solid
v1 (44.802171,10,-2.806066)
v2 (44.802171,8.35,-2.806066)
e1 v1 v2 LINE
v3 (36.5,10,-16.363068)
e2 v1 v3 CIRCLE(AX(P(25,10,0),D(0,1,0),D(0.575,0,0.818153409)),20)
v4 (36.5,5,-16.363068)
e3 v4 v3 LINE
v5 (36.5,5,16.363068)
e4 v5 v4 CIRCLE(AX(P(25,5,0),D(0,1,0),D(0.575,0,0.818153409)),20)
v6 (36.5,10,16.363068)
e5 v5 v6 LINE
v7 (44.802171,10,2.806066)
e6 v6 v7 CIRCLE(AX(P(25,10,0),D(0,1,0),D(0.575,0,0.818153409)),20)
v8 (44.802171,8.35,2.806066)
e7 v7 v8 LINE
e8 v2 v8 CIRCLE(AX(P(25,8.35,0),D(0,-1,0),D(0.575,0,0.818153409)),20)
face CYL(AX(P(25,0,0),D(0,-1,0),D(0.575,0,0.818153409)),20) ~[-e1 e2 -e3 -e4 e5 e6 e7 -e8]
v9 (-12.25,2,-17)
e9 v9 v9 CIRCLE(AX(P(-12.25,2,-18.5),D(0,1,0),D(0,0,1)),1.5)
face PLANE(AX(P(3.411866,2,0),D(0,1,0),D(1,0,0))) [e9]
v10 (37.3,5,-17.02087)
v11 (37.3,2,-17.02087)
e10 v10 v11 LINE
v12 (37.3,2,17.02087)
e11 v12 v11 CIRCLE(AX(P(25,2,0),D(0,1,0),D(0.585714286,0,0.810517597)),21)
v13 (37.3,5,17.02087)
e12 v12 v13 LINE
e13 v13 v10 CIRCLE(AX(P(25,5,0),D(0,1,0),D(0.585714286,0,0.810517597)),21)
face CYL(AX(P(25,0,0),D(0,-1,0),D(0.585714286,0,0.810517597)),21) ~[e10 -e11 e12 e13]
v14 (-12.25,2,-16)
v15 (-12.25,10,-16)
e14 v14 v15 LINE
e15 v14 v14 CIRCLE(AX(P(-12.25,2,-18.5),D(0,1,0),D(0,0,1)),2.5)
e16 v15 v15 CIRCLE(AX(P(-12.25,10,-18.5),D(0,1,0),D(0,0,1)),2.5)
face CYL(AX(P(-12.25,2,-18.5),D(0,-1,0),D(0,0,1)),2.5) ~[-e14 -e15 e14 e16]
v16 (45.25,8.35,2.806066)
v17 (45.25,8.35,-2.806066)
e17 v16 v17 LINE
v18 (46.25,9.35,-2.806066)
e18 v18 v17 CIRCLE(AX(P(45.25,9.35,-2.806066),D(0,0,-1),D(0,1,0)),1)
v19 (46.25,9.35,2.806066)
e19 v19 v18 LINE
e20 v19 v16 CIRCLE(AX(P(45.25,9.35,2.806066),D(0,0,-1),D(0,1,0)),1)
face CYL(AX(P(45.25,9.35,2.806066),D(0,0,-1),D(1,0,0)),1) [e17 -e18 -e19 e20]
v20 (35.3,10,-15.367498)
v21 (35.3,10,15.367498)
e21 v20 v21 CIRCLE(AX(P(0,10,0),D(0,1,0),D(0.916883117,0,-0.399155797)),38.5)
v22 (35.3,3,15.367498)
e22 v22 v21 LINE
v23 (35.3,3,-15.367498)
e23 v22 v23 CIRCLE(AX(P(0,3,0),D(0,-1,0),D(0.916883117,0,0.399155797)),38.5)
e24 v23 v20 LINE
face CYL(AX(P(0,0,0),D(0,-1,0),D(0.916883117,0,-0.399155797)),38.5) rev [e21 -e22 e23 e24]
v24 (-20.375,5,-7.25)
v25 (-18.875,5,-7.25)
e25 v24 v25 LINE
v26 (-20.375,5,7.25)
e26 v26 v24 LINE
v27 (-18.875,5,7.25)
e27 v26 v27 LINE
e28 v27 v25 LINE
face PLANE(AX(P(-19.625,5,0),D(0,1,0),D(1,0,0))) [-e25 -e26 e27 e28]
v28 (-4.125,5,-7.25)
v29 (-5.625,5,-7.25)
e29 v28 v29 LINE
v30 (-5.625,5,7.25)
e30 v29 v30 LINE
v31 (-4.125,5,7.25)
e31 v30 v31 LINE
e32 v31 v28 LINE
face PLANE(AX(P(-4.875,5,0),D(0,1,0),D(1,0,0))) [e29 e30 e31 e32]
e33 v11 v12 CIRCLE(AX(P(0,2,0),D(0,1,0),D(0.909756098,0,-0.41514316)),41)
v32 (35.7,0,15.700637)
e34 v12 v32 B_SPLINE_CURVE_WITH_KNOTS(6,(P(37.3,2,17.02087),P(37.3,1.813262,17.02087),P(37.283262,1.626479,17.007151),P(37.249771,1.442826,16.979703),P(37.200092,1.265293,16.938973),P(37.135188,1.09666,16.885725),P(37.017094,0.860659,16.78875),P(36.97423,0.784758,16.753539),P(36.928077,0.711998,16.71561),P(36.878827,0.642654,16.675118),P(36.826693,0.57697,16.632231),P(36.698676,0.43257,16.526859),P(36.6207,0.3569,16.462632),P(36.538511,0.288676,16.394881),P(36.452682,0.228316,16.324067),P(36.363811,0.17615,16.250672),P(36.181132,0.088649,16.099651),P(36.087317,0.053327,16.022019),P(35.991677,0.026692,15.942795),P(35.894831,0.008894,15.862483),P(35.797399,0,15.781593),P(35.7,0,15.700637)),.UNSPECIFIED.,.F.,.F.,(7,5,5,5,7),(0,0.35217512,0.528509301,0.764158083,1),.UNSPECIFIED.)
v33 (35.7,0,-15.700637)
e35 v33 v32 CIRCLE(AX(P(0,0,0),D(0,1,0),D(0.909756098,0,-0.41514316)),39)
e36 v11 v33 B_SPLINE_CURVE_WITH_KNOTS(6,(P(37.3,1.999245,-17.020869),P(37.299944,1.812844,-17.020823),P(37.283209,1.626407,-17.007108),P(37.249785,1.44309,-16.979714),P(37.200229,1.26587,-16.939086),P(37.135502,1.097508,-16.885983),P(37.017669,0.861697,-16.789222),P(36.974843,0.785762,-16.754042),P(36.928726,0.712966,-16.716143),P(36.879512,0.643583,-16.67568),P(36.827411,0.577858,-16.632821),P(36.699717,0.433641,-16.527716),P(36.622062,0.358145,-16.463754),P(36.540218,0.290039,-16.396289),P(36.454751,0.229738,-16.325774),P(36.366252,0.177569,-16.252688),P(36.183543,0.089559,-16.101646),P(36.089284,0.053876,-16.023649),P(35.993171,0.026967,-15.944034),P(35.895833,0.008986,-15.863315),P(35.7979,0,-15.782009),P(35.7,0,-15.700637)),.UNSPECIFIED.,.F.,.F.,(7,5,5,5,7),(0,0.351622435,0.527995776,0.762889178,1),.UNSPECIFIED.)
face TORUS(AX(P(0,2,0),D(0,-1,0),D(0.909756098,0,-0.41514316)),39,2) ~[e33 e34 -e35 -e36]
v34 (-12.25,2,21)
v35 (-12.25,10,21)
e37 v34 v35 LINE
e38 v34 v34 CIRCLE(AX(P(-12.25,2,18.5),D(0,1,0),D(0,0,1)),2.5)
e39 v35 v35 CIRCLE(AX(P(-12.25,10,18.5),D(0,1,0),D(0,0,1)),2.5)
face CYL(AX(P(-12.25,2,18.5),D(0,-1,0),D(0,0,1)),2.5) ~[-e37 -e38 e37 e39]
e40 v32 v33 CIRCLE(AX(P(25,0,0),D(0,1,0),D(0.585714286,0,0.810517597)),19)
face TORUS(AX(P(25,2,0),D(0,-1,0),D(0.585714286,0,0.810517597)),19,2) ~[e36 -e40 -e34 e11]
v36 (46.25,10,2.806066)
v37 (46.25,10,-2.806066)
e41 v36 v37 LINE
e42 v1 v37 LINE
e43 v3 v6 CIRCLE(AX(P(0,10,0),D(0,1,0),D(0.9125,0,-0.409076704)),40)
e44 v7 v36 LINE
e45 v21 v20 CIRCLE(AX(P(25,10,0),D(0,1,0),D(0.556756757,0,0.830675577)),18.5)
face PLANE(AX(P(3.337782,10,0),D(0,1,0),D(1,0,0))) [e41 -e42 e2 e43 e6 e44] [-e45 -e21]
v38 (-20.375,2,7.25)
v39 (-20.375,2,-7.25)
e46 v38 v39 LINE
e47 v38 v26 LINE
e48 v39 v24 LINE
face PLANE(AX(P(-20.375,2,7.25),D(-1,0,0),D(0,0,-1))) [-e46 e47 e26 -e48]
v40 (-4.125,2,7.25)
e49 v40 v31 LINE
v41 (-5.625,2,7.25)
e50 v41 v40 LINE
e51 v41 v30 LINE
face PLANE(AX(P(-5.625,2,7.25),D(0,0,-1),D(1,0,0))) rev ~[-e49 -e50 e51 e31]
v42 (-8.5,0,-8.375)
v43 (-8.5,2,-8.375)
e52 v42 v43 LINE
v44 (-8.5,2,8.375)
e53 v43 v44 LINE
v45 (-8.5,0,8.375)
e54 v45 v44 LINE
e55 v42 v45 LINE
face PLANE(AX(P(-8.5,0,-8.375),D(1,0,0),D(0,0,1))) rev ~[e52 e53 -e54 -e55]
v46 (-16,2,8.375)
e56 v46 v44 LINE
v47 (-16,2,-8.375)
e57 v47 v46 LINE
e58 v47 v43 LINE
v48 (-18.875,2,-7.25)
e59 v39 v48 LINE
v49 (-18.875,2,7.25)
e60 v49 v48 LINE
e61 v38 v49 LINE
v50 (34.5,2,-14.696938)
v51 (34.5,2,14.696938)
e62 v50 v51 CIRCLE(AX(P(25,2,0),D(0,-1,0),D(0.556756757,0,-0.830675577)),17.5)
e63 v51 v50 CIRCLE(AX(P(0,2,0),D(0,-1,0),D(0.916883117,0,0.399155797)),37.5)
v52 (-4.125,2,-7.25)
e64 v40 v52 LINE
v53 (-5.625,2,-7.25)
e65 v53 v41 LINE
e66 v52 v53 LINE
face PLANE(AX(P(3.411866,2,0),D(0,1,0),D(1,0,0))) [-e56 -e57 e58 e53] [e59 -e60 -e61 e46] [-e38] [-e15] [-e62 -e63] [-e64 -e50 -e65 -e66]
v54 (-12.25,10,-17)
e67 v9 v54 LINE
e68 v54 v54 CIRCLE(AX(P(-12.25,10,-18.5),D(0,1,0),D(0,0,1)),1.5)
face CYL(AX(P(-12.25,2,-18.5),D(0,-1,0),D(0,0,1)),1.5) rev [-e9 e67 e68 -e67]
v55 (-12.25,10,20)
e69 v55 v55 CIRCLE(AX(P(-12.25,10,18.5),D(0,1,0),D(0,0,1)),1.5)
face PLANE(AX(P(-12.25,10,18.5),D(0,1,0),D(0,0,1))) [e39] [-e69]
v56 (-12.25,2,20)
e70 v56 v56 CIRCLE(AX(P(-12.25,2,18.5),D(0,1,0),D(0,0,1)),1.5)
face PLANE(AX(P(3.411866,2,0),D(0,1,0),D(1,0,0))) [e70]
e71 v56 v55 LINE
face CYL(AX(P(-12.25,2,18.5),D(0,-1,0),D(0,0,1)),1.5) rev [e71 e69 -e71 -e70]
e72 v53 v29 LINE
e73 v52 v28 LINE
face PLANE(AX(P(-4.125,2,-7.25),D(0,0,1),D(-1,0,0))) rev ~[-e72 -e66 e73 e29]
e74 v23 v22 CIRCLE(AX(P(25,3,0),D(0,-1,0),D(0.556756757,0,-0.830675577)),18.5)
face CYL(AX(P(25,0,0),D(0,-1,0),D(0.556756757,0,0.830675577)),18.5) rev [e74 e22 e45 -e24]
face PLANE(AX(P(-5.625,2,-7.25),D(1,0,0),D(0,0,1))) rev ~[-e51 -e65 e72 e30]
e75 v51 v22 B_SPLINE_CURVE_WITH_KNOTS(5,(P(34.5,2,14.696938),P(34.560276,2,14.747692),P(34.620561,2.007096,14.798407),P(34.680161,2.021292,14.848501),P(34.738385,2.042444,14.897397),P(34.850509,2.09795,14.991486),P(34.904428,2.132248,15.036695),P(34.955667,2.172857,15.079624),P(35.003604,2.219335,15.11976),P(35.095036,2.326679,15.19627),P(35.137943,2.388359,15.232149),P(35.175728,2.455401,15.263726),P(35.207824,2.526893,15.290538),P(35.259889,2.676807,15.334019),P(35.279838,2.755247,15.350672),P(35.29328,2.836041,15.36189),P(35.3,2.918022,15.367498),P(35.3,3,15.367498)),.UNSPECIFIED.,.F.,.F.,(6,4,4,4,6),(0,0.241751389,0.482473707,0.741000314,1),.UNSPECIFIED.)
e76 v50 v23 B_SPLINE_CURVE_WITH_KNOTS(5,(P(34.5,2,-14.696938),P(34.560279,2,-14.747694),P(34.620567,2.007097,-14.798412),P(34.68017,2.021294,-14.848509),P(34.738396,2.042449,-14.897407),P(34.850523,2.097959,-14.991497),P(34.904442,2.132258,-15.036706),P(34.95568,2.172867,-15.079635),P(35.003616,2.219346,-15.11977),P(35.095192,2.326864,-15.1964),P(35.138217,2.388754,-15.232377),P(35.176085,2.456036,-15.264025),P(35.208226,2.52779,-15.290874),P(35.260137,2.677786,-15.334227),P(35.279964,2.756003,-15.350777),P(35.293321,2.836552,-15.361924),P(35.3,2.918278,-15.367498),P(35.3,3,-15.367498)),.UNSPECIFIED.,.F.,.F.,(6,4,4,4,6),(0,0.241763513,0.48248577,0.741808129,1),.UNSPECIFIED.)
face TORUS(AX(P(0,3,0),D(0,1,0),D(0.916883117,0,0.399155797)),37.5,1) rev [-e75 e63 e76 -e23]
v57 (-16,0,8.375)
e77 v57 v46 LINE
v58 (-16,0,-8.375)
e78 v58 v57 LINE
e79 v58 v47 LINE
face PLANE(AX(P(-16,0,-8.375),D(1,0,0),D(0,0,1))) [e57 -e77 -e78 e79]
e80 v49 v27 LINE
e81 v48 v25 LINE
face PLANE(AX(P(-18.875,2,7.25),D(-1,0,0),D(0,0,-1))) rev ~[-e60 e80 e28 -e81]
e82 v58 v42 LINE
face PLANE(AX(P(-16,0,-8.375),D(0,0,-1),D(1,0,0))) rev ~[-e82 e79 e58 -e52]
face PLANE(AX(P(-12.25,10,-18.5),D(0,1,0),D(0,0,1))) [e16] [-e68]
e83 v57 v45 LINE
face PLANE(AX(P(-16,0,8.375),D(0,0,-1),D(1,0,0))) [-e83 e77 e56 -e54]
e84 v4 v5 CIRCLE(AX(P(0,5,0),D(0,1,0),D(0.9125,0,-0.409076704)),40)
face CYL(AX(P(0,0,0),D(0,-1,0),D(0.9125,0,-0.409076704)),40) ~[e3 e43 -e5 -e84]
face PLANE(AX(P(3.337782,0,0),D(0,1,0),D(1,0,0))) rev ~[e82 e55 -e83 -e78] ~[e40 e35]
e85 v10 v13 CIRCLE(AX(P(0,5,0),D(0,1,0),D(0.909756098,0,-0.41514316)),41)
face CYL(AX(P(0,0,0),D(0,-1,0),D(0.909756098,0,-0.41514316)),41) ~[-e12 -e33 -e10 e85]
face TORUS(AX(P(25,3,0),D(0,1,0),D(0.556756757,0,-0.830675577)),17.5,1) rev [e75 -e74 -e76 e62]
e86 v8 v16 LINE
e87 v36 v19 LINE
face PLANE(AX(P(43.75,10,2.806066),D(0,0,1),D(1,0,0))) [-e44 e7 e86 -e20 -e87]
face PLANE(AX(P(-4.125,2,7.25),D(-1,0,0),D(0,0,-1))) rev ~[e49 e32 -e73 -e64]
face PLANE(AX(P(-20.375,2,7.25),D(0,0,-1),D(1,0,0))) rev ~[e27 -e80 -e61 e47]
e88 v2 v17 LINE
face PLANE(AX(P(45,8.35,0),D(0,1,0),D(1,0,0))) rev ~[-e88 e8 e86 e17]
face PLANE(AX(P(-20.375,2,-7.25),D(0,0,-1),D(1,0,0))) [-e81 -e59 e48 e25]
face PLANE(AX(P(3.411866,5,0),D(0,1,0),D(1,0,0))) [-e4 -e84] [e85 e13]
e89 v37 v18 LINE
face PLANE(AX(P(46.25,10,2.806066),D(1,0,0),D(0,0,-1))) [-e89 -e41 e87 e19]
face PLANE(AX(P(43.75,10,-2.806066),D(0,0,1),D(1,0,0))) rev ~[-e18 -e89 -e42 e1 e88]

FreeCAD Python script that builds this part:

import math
import FreeCAD as App
import Part
import Sketcher


def edges_at(feature, points):
    """Names of the edges that pass closest to the given points."""
    edges = feature.Shape.Edges
    near = lambda p: min(range(len(edges)), key=lambda i: edges[i].distToShape(Part.Vertex(*p))[0])
    return sorted({f"Edge{near(p) + 1}" for p in points})


def add_polygon(sketch, points):
    """Adds a closed chain of lines whose ends are joined by coincident constraints."""
    first, n = sketch.GeometryCount, len(points)
    for a, b in zip(points, points[1:] + points[:1]):
        sketch.addGeometry(Part.LineSegment(App.Vector(*a, 0), App.Vector(*b, 0)), False)
    for i in range(n):
        sketch.addConstraint(Sketcher.Constraint("Coincident", first + i, 2, first + (i + 1) % n, 1))

doc = App.newDocument("Part")
body = doc.addObject("PartDesign::Body", "Body")

# Sketch on XZ plane
sketch1 = body.newObject("Sketcher::SketchObject", "Sketch")
sketch1.AttachmentSupport = (doc.getObject("XZ_Plane"), [""])
sketch1.MapMode = "FlatFace"
sketch1.addGeometry([
    Part.ArcOfCircle(Part.Circle(App.Vector(0, 0, 0), App.Vector(0, 0, 1), 41), math.radians(25), math.radians(335)),
    Part.ArcOfCircle(Part.Circle(App.Vector(25, 0, 0), App.Vector(0, 0, 1), 21), math.radians(-54), math.radians(54)),
], False)
sketch1.addConstraint([
    Sketcher.Constraint("Coincident", 0, 1, 1, 2),
    Sketcher.Constraint("Coincident", 1, 1, 0, 2),
    Sketcher.Constraint("Coincident", 0, 3, -1, 1),
    Sketcher.Constraint("PointOnObject", 1, 3, -1),
    Sketcher.Constraint("Radius", 0, 41.0),
    Sketcher.Constraint("Radius", 1, 21.0),
    Sketcher.Constraint("DistanceX", -1, 1, 1, 3, 25.0),
])
pad1 = body.newObject("PartDesign::Pad", "Pad")
pad1.Profile = sketch1
pad1.Length = 2
pad1.Reversed = True

# Sketch on XZ plane
sketch2 = body.newObject("Sketcher::SketchObject", "Sketch001")
sketch2.AttachmentSupport = (doc.getObject("XZ_Plane"), [""])
sketch2.MapMode = "FlatFace"
sketch2.addGeometry([
    Part.ArcOfCircle(Part.Circle(App.Vector(0, 0, 0), App.Vector(0, 0, 1), 40), math.radians(24), math.radians(336)),
    Part.ArcOfCircle(Part.Circle(App.Vector(25, 0, 0), App.Vector(0, 0, 1), 20), math.radians(-55), math.radians(55)),
    Part.ArcOfCircle(Part.Circle(App.Vector(25, 0, 0), App.Vector(0, 0, 1), 18), math.radians(-56), math.radians(56)),
    Part.ArcOfCircle(Part.Circle(App.Vector(0, 0, 0), App.Vector(0, 0, 1), 38), math.radians(24), math.radians(336)),
], False)
sketch2.addConstraint([
    Sketcher.Constraint("Coincident", 0, 1, 1, 2),
    Sketcher.Constraint("Coincident", 1, 1, 0, 2),
    Sketcher.Constraint("Coincident", 2, 1, 3, 2),
    Sketcher.Constraint("Coincident", 3, 1, 2, 2),
    Sketcher.Constraint("Coincident", 0, 3, -1, 1),
    Sketcher.Constraint("Coincident", 3, 3, -1, 1),
    Sketcher.Constraint("Coincident", 2, 3, 1, 3),
    Sketcher.Constraint("PointOnObject", 1, 3, -1),
    Sketcher.Constraint("Radius", 0, 40.0),
    Sketcher.Constraint("Radius", 1, 20.0),
    Sketcher.Constraint("Radius", 2, 18.5),
    Sketcher.Constraint("Radius", 3, 38.5),
    Sketcher.Constraint("DistanceX", -1, 1, 1, 3, 25.0),
])
pad2 = body.newObject("PartDesign::Pad", "Pad001")
pad2.Profile = sketch2
pad2.Length = 10
pad2.Reversed = True

# Sketch on XZ plane
sketch3 = body.newObject("Sketcher::SketchObject", "Sketch002")
sketch3.AttachmentSupport = (doc.getObject("XZ_Plane"), [""])
sketch3.MapMode = "FlatFace"
sketch3.addGeometry([
    Part.ArcOfCircle(Part.Circle(App.Vector(0, 0, 0), App.Vector(0, 0, 1), 41), math.radians(25), math.radians(335)),
    Part.ArcOfCircle(Part.Circle(App.Vector(25, 0, 0), App.Vector(0, 0, 1), 21), math.radians(-54), math.radians(54)),
    Part.ArcOfCircle(Part.Circle(App.Vector(25, 0, 0), App.Vector(0, 0, 1), 20), math.radians(-55), math.radians(55)),
    Part.ArcOfCircle(Part.Circle(App.Vector(0, 0, 0), App.Vector(0, 0, 1), 40), math.radians(24), math.radians(336)),
], False)
sketch3.addConstraint([
    Sketcher.Constraint("Coincident", 0, 1, 1, 2),
    Sketcher.Constraint("Coincident", 1, 1, 0, 2),
    Sketcher.Constraint("Coincident", 2, 1, 3, 2),
    Sketcher.Constraint("Coincident", 3, 1, 2, 2),
    Sketcher.Constraint("Coincident", 0, 3, -1, 1),
    Sketcher.Constraint("Coincident", 3, 3, -1, 1),
    Sketcher.Constraint("Coincident", 2, 3, 1, 3),
    Sketcher.Constraint("PointOnObject", 1, 3, -1),
    Sketcher.Constraint("Radius", 0, 41.0),
    Sketcher.Constraint("Radius", 1, 21.0),
    Sketcher.Constraint("Radius", 2, 20.0),
    Sketcher.Constraint("Radius", 3, 40.0),
    Sketcher.Constraint("DistanceX", -1, 1, 1, 3, 25.0),
])
pad3 = body.newObject("PartDesign::Pad", "Pad002")
pad3.Profile = sketch3
pad3.Length = 5
pad3.Reversed = True

# Sketch on XZ plane
sketch4 = body.newObject("Sketcher::SketchObject", "Sketch003")
sketch4.AttachmentSupport = (doc.getObject("XZ_Plane"), [""])
sketch4.MapMode = "FlatFace"
sketch4.AttachmentOffset = App.Placement(App.Vector(0, 0, -10), App.Rotation())
add_polygon(sketch4, [(43.8, -2.8), (43.8, 2.8), (46.2, 2.8), (46.2, -2.8)])  # lines 0-3
sketch4.addConstraint([
    Sketcher.Constraint("Vertical", 0),
    Sketcher.Constraint("Horizontal", 1),
    Sketcher.Constraint("Vertical", 2),
    Sketcher.Constraint("Horizontal", 3),
    Sketcher.Constraint("DistanceX", 1, 1, 1, 2, 2.5),
    Sketcher.Constraint("DistanceX", -1, 1, 0, 2, 43.75),
    Sketcher.Constraint("DistanceY", 0, 1, 0, 2, 5.612133),
    Sketcher.Constraint("DistanceY", -1, 1, 0, 2, 2.806066),
])
pad4 = body.newObject("PartDesign::Pad", "Pad003")
pad4.Profile = sketch4
pad4.Length = 1.65
doc.recompute()

fillet = body.newObject("PartDesign::Fillet", "Fillet")
fillet.Base = (pad4, edges_at(pad4, [(46.25, 8.35, 0)]))
fillet.Radius = 1

# Sketch on XZ plane
sketch5 = body.newObject("Sketcher::SketchObject", "Sketch004")
sketch5.AttachmentSupport = (doc.getObject("XZ_Plane"), [""])
sketch5.MapMode = "FlatFace"
add_polygon(sketch5, [(-16, 8), (-16, -8), (-8, -8), (-8, 8)])  # lines 0-3
sketch5.addConstraint([
    Sketcher.Constraint("Vertical", 0),
    Sketcher.Constraint("Horizontal", 1),
    Sketcher.Constraint("Vertical", 2),
    Sketcher.Constraint("Horizontal", 3),
    Sketcher.Constraint("DistanceX", 1, 1, 1, 2, 7.5),
    Sketcher.Constraint("DistanceX", 0, 2, -1, 1, 16.0),
    Sketcher.Constraint("DistanceY", 0, 2, 0, 1, 16.75),
    Sketcher.Constraint("DistanceY", 0, 2, -1, 1, 8.375),
])
pocket1 = body.newObject("PartDesign::Pocket", "Pocket")
pocket1.Profile = sketch5
pocket1.Length = 2

# Sketch on XZ plane
sketch6 = body.newObject("Sketcher::SketchObject", "Sketch005")
sketch6.AttachmentSupport = (doc.getObject("XZ_Plane"), [""])
sketch6.MapMode = "FlatFace"
sketch6.AttachmentOffset = App.Placement(App.Vector(0, 0, -2), App.Rotation())
add_polygon(sketch6, [(-5.6, 7.2), (-4.1, 7.2), (-4.1, -7.2), (-5.6, -7.2)])  # lines 0-3
add_polygon(sketch6, [(-20.4, -7.2), (-20.4, 7.2), (-18.9, 7.2), (-18.9, -7.2)])  # lines 4-7
sketch6.addConstraint([
    Sketcher.Constraint("Horizontal", 0),
    Sketcher.Constraint("Vertical", 1),
    Sketcher.Constraint("Horizontal", 2),
    Sketcher.Constraint("Vertical", 3),
    Sketcher.Constraint("Vertical", 4),
    Sketcher.Constraint("Horizontal", 5),
    Sketcher.Constraint("Vertical", 6),
    Sketcher.Constraint("Horizontal", 7),
    Sketcher.Constraint("Horizontal", 3, 2, 4, 2),
    Sketcher.Constraint("Horizontal", 2, 2, 6, 2),
    Sketcher.Constraint("Equal", 2, 5),
    Sketcher.Constraint("DistanceX", 0, 1, 0, 2, 1.5),
    Sketcher.Constraint("DistanceY", 1, 2, 1, 1, 14.5),
    Sketcher.Constraint("DistanceY", -1, 1, 0, 2, 7.25),
    Sketcher.Constraint("DistanceX", 4, 2, 3, 2, 14.75),
    Sketcher.Constraint("DistanceX", 0, 2, -1, 1, 4.125),
])
pad5 = body.newObject("PartDesign::Pad", "Pad004")
pad5.Profile = sketch6
pad5.Length = 3
pad5.Reversed = True

# Sketch on XZ plane
sketch7 = body.newObject("Sketcher::SketchObject", "Sketch006")
sketch7.AttachmentSupport = (doc.getObject("XZ_Plane"), [""])
sketch7.MapMode = "FlatFace"
sketch7.AttachmentOffset = App.Placement(App.Vector(0, 0, -2), App.Rotation())
sketch7.addGeometry([
    Part.Circle(App.Vector(-12.2, 18.5, 0), App.Vector(0, 0, 1), 2.5),
    Part.Circle(App.Vector(-12.2, 18.5, 0), App.Vector(0, 0, 1), 1.5),
    Part.Circle(App.Vector(-12.2, -18.5, 0), App.Vector(0, 0, 1), 2.5),
    Part.Circle(App.Vector(-12.2, -18.5, 0), App.Vector(0, 0, 1), 1.5),
], False)
sketch7.addConstraint([
    Sketcher.Constraint("Coincident", 1, 3, 0, 3),
    Sketcher.Constraint("Coincident", 3, 3, 2, 3),
    Sketcher.Constraint("Equal", 0, 2),
    Sketcher.Constraint("Equal", 1, 3),
    Sketcher.Constraint("Symmetric", 0, 3, 2, 3, -1),
    Sketcher.Constraint("Diameter", 0, 5.0),
    Sketcher.Constraint("Diameter", 1, 3.0),
    Sketcher.Constraint("DistanceY", 2, 3, 0, 3, 37.0),
    Sketcher.Constraint("DistanceX", 0, 3, -1, 1, 12.25),
])
pad6 = body.newObject("PartDesign::Pad", "Pad005")
pad6.Profile = sketch7
pad6.Length = 8
pad6.Reversed = True
doc.recompute()

fillet2 = body.newObject("PartDesign::Fillet", "Fillet001")
fillet2.Base = (pad6, edges_at(pad6, [(46, 0, 0), (-41, 0, 0)]))
fillet2.Radius = 2
doc.recompute()

fillet3 = body.newObject("PartDesign::Fillet", "Fillet002")
fillet3.Base = (fillet2, edges_at(fillet2, [(43.5, 2, 0), (-38.5, 2, 0)]))
fillet3.Radius = 1

doc.recompute()
